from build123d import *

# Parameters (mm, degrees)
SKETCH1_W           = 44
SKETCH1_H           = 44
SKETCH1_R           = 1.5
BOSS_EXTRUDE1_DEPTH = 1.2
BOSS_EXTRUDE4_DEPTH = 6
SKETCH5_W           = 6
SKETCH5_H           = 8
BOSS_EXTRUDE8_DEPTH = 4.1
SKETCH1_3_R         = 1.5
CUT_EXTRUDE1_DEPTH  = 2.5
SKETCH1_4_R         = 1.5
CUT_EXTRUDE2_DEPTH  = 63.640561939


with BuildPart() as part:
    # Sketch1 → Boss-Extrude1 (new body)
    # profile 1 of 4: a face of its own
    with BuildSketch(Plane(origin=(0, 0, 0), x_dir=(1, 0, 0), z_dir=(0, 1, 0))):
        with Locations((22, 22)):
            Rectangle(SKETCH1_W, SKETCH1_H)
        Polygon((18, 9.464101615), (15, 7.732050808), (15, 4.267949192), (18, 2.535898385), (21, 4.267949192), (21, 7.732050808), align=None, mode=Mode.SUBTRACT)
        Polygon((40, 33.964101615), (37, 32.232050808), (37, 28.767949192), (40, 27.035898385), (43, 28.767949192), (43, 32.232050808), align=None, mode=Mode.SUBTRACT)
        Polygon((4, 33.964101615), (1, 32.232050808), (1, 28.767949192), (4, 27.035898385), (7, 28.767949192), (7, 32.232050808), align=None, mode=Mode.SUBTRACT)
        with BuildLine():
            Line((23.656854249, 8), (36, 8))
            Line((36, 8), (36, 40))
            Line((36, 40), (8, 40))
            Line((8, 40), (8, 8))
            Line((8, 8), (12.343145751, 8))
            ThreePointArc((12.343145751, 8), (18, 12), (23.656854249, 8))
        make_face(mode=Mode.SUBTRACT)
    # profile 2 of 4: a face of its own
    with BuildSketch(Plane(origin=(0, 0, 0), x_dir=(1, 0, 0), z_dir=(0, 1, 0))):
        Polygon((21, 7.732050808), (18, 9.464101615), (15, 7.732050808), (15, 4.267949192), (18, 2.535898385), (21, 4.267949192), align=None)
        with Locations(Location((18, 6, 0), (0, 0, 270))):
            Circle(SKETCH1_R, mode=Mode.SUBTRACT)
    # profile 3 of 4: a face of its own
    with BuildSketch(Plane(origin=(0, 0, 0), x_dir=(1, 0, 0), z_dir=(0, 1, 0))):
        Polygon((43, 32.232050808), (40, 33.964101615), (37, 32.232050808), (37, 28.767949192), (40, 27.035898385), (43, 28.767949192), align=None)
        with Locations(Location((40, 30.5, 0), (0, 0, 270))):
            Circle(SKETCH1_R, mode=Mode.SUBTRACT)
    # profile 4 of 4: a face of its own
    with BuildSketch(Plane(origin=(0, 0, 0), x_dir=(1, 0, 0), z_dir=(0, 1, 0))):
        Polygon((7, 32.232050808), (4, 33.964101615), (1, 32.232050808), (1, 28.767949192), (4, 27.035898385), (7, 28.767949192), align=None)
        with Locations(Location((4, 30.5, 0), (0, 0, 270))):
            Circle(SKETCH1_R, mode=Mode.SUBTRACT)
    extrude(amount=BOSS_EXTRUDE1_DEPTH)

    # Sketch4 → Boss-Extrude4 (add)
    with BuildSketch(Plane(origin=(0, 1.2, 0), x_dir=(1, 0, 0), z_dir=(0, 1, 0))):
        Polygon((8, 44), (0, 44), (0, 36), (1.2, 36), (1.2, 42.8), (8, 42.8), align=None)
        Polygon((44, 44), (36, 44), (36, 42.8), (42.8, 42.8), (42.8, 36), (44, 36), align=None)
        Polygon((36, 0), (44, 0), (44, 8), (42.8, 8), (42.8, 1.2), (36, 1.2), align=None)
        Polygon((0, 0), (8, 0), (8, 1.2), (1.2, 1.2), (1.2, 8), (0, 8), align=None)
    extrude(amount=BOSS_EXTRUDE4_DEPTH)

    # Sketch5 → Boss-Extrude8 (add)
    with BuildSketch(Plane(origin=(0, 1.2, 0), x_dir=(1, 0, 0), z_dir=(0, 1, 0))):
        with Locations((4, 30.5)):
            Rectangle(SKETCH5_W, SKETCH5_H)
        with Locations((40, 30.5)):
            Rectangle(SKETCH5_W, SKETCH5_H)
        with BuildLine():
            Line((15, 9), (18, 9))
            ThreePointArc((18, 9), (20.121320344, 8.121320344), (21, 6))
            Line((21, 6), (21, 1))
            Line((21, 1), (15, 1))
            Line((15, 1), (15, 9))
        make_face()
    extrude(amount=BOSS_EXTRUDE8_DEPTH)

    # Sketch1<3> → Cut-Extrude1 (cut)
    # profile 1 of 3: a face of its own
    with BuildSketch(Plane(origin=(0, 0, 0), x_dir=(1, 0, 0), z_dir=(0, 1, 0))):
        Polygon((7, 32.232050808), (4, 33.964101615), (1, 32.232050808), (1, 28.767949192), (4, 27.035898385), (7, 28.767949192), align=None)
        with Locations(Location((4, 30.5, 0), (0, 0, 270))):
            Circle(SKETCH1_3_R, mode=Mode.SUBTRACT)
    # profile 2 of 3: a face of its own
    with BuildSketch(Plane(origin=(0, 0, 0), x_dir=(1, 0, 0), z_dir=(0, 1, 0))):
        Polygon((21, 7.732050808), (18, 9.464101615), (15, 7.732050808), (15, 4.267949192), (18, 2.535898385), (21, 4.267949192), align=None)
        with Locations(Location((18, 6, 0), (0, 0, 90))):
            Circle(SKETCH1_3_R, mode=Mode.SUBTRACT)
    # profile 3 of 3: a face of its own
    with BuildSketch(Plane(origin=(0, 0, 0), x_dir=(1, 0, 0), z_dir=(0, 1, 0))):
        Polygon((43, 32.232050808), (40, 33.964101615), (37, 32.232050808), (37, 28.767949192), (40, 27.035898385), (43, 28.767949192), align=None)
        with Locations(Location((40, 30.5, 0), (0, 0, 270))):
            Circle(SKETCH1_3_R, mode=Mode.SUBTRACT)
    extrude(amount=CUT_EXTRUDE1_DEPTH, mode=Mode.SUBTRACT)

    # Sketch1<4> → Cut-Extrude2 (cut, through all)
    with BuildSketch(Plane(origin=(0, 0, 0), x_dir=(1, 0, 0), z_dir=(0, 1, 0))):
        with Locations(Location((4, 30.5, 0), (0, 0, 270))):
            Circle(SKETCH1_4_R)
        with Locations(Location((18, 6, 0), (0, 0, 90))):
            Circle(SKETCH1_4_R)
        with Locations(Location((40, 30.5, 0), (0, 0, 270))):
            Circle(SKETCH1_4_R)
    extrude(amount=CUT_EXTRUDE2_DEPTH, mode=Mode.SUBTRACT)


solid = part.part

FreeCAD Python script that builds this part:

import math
import FreeCAD as App
import Part
import Sketcher
Q = App.Units.Quantity


def add_polygon(sketch, points):
    """Adds a closed chain of lines whose ends are joined by coincident constraints."""
    first, n = sketch.GeometryCount, len(points)
    for a, b in zip(points, points[1:] + points[:1]):
        sketch.addGeometry(Part.LineSegment(App.Vector(*a, 0), App.Vector(*b, 0)), False)
    for i in range(n):
        sketch.addConstraint(Sketcher.Constraint("Coincident", first + i, 2, first + (i + 1) % n, 1))

doc = App.newDocument("Part")
body = doc.addObject("PartDesign::Body", "Body")

# Sketch on XZ plane
sketch1 = body.newObject("Sketcher::SketchObject", "Sketch")
sketch1.AttachmentSupport = (doc.getObject("XZ_Plane"), [""])
sketch1.MapMode = "FlatFace"
add_polygon(sketch1, [(0, -44), (0, 0), (44, 0), (44, -44)])  # lines 0-3
sketch1.addGeometry(Part.LineSegment(App.Vector(36, -8, 0), App.Vector(23.7, -8, 0)), False)  # 4
sketch1.addGeometry(Part.ArcOfCircle(Part.Circle(App.Vector(18, -6, 0), App.Vector(0, 0, 1), 6), math.radians(-161), math.radians(-19)), False)  # 5
sketch1.addGeometry(Part.LineSegment(App.Vector(12.3, -8, 0), App.Vector(8, -8, 0)), False)  # 6
sketch1.addGeometry(Part.LineSegment(App.Vector(8, -8, 0), App.Vector(8, -40, 0)), False)  # 7
sketch1.addGeometry(Part.LineSegment(App.Vector(8, -40, 0), App.Vector(36, -40, 0)), False)  # 8
sketch1.addGeometry(Part.LineSegment(App.Vector(36, -40, 0), App.Vector(36, -8, 0)), False)  # 9
sketch1.addGeometry(Part.Circle(App.Vector(18, -6, 0), App.Vector(0, 0, 1), 1.5), False)  # 10
sketch1.addGeometry(Part.Circle(App.Vector(4, -30.5, 0), App.Vector(0, 0, 1), 1.5), False)  # 11
sketch1.addGeometry(Part.Circle(App.Vector(40, -30.5, 0), App.Vector(0, 0, 1), 1.5), False)  # 12
sketch1.addConstraint(Sketcher.Constraint("Coincident", 4, 2, 5, 2))
sketch1.addConstraint(Sketcher.Constraint("Coincident", 5, 1, 6, 1))
sketch1.addConstraint(Sketcher.Constraint("Coincident", 6, 2, 7, 1))
sketch1.addConstraint(Sketcher.Constraint("Coincident", 7, 2, 8, 1))
sketch1.addConstraint(Sketcher.Constraint("Coincident", 8, 2, 9, 1))
sketch1.addConstraint(Sketcher.Constraint("Coincident", 9, 2, 4, 1))
sketch1.addConstraint(Sketcher.Constraint("Vertical", 0))
sketch1.addConstraint(Sketcher.Constraint("Horizontal", 1))
sketch1.addConstraint(Sketcher.Constraint("Vertical", 2))
sketch1.addConstraint(Sketcher.Constraint("Horizontal", 3))
sketch1.addConstraint(Sketcher.Constraint("Horizontal", 4))
sketch1.addConstraint(Sketcher.Constraint("Horizontal", 6))
sketch1.addConstraint(Sketcher.Constraint("Vertical", 7))
sketch1.addConstraint(Sketcher.Constraint("Horizontal", 8))
sketch1.addConstraint(Sketcher.Constraint("Vertical", 9))
sketch1.addConstraint(Sketcher.Constraint("Coincident", 0, 2, -1, 1))
sketch1.addConstraint(Sketcher.Constraint("Coincident", 10, 3, 5, 3))
sketch1.addConstraint(Sketcher.Constraint("Equal", 10, 11))
sketch1.addConstraint(Sketcher.Constraint("Equal", 11, 12))
sketch1.addConstraint(Sketcher.Constraint("Horizontal", 11, 3, 12, 3))
sketch1.addConstraint(Sketcher.Constraint("Horizontal", 4, 2, 5, 1))
sketch1.addConstraint(Sketcher.Constraint("Equal", 3, 0))
sketch1.addConstraint(Sketcher.Constraint("Diameter", 10, 3.0))
sketch1.addConstraint(Sketcher.Constraint("Radius", 5, 6.0))
sketch1.addConstraint(Sketcher.Constraint("DistanceX", 1, 1, 1, 2, 44.0))
sketch1.addConstraint(Sketcher.Constraint("DistanceX", 8, 1, 8, 2, 28.0))
sketch1.addConstraint(Sketcher.Constraint("DistanceY", 7, 2, 7, 1, 32.0))
sketch1.addConstraint(Sketcher.Constraint("DistanceX", -1, 1, 5, 3, 18.0))
sketch1.addConstraint(Sketcher.Constraint("DistanceY", 5, 3, -1, 1, 6.0))
sketch1.addConstraint(Sketcher.Constraint("DistanceX", -1, 1, 11, 3, 4.0))
sketch1.addConstraint(Sketcher.Constraint("DistanceX", -1, 1, 12, 3, 40.0))
sketch1.addConstraint(Sketcher.Constraint("DistanceY", 4, 2, -1, 1, 8.0))
sketch1.addConstraint(Sketcher.Constraint("DistanceX", -1, 1, 6, 2, 8.0))
sketch1.addConstraint(Sketcher.Constraint("DistanceY", 11, 3, -1, 1, 30.5))
pad1 = body.newObject("PartDesign::Pad", "Pad")
pad1.Profile = sketch1
pad1.Length = 1.2
pad1.Reversed = True

# Sketch on XZ plane
sketch2 = body.newObject("Sketcher::SketchObject", "Sketch001")
sketch2.AttachmentSupport = (doc.getObject("XZ_Plane"), [""])
sketch2.MapMode = "FlatFace"
sketch2.AttachmentOffset = App.Placement(App.Vector(0, 0, -1.2), App.Rotation())
add_polygon(sketch2, [(8, -44), (0, -44), (0, -36), (1.2, -36), (1.2, -42.8), (8, -42.8)])  # lines 0-5
add_polygon(sketch2, [(44, -44), (36, -44), (36, -42.8), (42.8, -42.8), (42.8, -36), (44, -36)])  # lines 6-11
add_polygon(sketch2, [(36, 0), (44, 0), (44, -8), (42.8, -8), (42.8, -1.2), (36, -1.2)])  # lines 12-17
add_polygon(sketch2, [(0, 0), (8, 0), (8, -1.2), (1.2, -1.2), (1.2, -8), (0, -8)])  # lines 18-23
sketch2.addConstraint(Sketcher.Constraint("Horizontal", 0))
sketch2.addConstraint(Sketcher.Constraint("Vertical", 1))
sketch2.addConstraint(Sketcher.Constraint("Horizontal", 2))
sketch2.addConstraint(Sketcher.Constraint("Vertical", 3))
sketch2.addConstraint(Sketcher.Constraint("Horizontal", 4))
sketch2.addConstraint(Sketcher.Constraint("Vertical", 5))
sketch2.addConstraint(Sketcher.Constraint("Horizontal", 6))
sketch2.addConstraint(Sketcher.Constraint("Vertical", 7))
sketch2.addConstraint(Sketcher.Constraint("Horizontal", 8))
sketch2.addConstraint(Sketcher.Constraint("Vertical", 9))
sketch2.addConstraint(Sketcher.Constraint("Horizontal", 10))
sketch2.addConstraint(Sketcher.Constraint("Vertical", 11))
sketch2.addConstraint(Sketcher.Constraint("Horizontal", 12))
sketch2.addConstraint(Sketcher.Constraint("Vertical", 13))
sketch2.addConstraint(Sketcher.Constraint("Horizontal", 14))
sketch2.addConstraint(Sketcher.Constraint("Vertical", 15))
sketch2.addConstraint(Sketcher.Constraint("Horizontal", 16))
sketch2.addConstraint(Sketcher.Constraint("Vertical", 17))
sketch2.addConstraint(Sketcher.Constraint("Horizontal", 18))
sketch2.addConstraint(Sketcher.Constraint("Vertical", 19))
sketch2.addConstraint(Sketcher.Constraint("Horizontal", 20))
sketch2.addConstraint(Sketcher.Constraint("Vertical", 21))
sketch2.addConstraint(Sketcher.Constraint("Horizontal", 22))
sketch2.addConstraint(Sketcher.Constraint("Vertical", 23))
sketch2.addConstraint(Sketcher.Constraint("Coincident", 23, 2, -1, 1))
sketch2.addConstraint(Sketcher.Constraint("PointOnObject", 0, 2, -2))
sketch2.addConstraint(Sketcher.Constraint("PointOnObject", 12, 2, -1))
sketch2.addConstraint(Sketcher.Constraint("Horizontal", 5, 2, 6, 2))
sketch2.addConstraint(Sketcher.Constraint("Horizontal", 4, 2, 7, 2))
sketch2.addConstraint(Sketcher.Constraint("Horizontal", 2, 2, 9, 2))
sketch2.addConstraint(Sketcher.Constraint("Horizontal", 16, 2, 19, 2))
sketch2.addConstraint(Sketcher.Constraint("Horizontal", 14, 2, 21, 2))
sketch2.addConstraint(Sketcher.Constraint("Vertical", 11, 2, 12, 2))
sketch2.addConstraint(Sketcher.Constraint("Vertical", 9, 2, 14, 2))
sketch2.addConstraint(Sketcher.Constraint("Vertical", 7, 2, 16, 2))
sketch2.addConstraint(Sketcher.Constraint("Vertical", 5, 2, 18, 2))
sketch2.addConstraint(Sketcher.Constraint("Vertical", 3, 2, 20, 2))
sketch2.addConstraint(Sketcher.Constraint("Equal", 0, 6))
sketch2.addConstraint(Sketcher.Constraint("Equal", 4, 8))
sketch2.addConstraint(Sketcher.Constraint("Equal", 18, 1))
sketch2.addConstraint(Sketcher.Constraint("Equal", 20, 3))
sketch2.addConstraint(Sketcher.Constraint("Equal", 11, 13))
sketch2.addConstraint(Sketcher.Constraint("Equal", 9, 15))
sketch2.addConstraint(Sketcher.Constraint("DistanceX", 0, 2, 0, 1, 8.0))
sketch2.addConstraint(Sketcher.Constraint("DistanceX", 2, 1, 2, 2, 1.2))
sketch2.addConstraint(Sketcher.Constraint("DistanceY", 0, 2, -1, 1, 44.0))
sketch2.addConstraint(Sketcher.Constraint("DistanceX", -1, 1, 6, 2, 36.0))
pad2 = body.newObject("PartDesign::Pad", "Pad001")
pad2.Profile = sketch2
pad2.Length = 6
pad2.Reversed = True

# Sketch on XZ plane
sketch3 = body.newObject("Sketcher::SketchObject", "Sketch002")
sketch3.AttachmentSupport = (doc.getObject("XZ_Plane"), [""])
sketch3.MapMode = "FlatFace"
sketch3.AttachmentOffset = App.Placement(App.Vector(0, 0, -1.2), App.Rotation())
add_polygon(sketch3, [(1, -34.5), (1, -26.5), (7, -26.5), (7, -34.5)])  # lines 0-3
add_polygon(sketch3, [(37, -34.5), (37, -26.5), (43, -26.5), (43, -34.5)])  # lines 4-7
sketch3.addGeometry(Part.LineSegment(App.Vector(18, -9, 0), App.Vector(15, -9, 0)), False)  # 8
sketch3.addGeometry(Part.LineSegment(App.Vector(15, -9, 0), App.Vector(15, -1, 0)), False)  # 9
sketch3.addGeometry(Part.LineSegment(App.Vector(15, -1, 0), App.Vector(21, -1, 0)), False)  # 10
sketch3.addGeometry(Part.LineSegment(App.Vector(21, -1, 0), App.Vector(21, -6, 0)), False)  # 11
sketch3.addGeometry(Part.ArcOfCircle(Part.Circle(App.Vector(18, -6, 0), App.Vector(0, 0, 1), 3), math.radians(-90), math.radians(0)), False)  # 12
sketch3.addConstraint(Sketcher.Constraint("Coincident", 8, 2, 9, 1))
sketch3.addConstraint(Sketcher.Constraint("Coincident", 9, 2, 10, 1))
sketch3.addConstraint(Sketcher.Constraint("Coincident", 10, 2, 11, 1))
sketch3.addConstraint(Sketcher.Constraint("Tangent", 11, 2, 12, 2))
sketch3.addConstraint(Sketcher.Constraint("Tangent", 12, 1, 8, 1))
sketch3.addConstraint(Sketcher.Constraint("Vertical", 0))
sketch3.addConstraint(Sketcher.Constraint("Horizontal", 1))
sketch3.addConstraint(Sketcher.Constraint("Vertical", 2))
sketch3.addConstraint(Sketcher.Constraint("Horizontal", 3))
sketch3.addConstraint(Sketcher.Constraint("Vertical", 4))
sketch3.addConstraint(Sketcher.Constraint("Horizontal", 5))
sketch3.addConstraint(Sketcher.Constraint("Vertical", 6))
sketch3.addConstraint(Sketcher.Constraint("Horizontal", 7))
sketch3.addConstraint(Sketcher.Constraint("Horizontal", 8))
sketch3.addConstraint(Sketcher.Constraint("Vertical", 9))
sketch3.addConstraint(Sketcher.Constraint("Horizontal", 10))
sketch3.addConstraint(Sketcher.Constraint("Vertical", 11))
sketch3.addConstraint(Sketcher.Constraint("Horizontal", 1, 2, 4, 2))
sketch3.addConstraint(Sketcher.Constraint("Horizontal", 3, 2, 6, 2))
sketch3.addConstraint(Sketcher.Constraint("Equal", 3, 5))
sketch3.addConstraint(Sketcher.Constraint("Equal", 7, 10))
sketch3.addConstraint(Sketcher.Constraint("Equal", 6, 9))
sketch3.addConstraint(Sketcher.Constraint("Radius", 12, 3.0))
sketch3.addConstraint(Sketcher.Constraint("DistanceX", 1, 1, 1, 2, 6.0))
sketch3.addConstraint(Sketcher.Constraint("DistanceY", 0, 1, 0, 2, 8.0))
sketch3.addConstraint(Sketcher.Constraint("DistanceX", -1, 1, 12, 3, 18.0))
sketch3.addConstraint(Sketcher.Constraint("DistanceY", 12, 3, -1, 1, 6.0))
sketch3.addConstraint(Sketcher.Constraint("DistanceX", -1, 1, 0, 2, 1.0))
sketch3.addConstraint(Sketcher.Constraint("DistanceX", -1, 1, 4, 2, 37.0))
sketch3.addConstraint(Sketcher.Constraint("DistanceY", 0, 2, -1, 1, 26.5))
pad3 = body.newObject("PartDesign::Pad", "Pad002")
pad3.Profile = sketch3
pad3.Length = 4.1
pad3.Reversed = True

# Sketch on XZ plane
sketch4 = body.newObject("Sketcher::SketchObject", "Sketch003")
sketch4.AttachmentSupport = (doc.getObject("XZ_Plane"), [""])
sketch4.MapMode = "FlatFace"
add_polygon(sketch4, [(7, -32.2), (4, -34), (1, -32.2), (1, -28.8), (4, -27), (7, -28.8)])  # lines 0-5
sketch4.addGeometry(Part.Circle(App.Vector(4, -30.5, 0), App.Vector(0, 0, 1), 1.5), False)  # 6
add_polygon(sketch4, [(21, -7.7), (18, -9.5), (15, -7.7), (15, -4.3), (18, -2.5), (21, -4.3)])  # lines 7-12
sketch4.addGeometry(Part.Circle(App.Vector(18, -6, 0), App.Vector(0, 0, 1), 1.5), False)  # 13
add_polygon(sketch4, [(43, -32.2), (40, -34), (37, -32.2), (37, -28.8), (40, -27), (43, -28.8)])  # lines 14-19
sketch4.addGeometry(Part.Circle(App.Vector(40, -30.5, 0), App.Vector(0, 0, 1), 1.5), False)  # 20
sketch4.addConstraint(Sketcher.Constraint("Vertical", 2))
sketch4.addConstraint(Sketcher.Constraint("Vertical", 5))
sketch4.addConstraint(Sketcher.Constraint("Vertical", 9))
sketch4.addConstraint(Sketcher.Constraint("Vertical", 12))
sketch4.addConstraint(Sketcher.Constraint("Vertical", 16))
sketch4.addConstraint(Sketcher.Constraint("Vertical", 19))
sketch4.addConstraint(Sketcher.Constraint("Equal", 6, 13))
sketch4.addConstraint(Sketcher.Constraint("Equal", 13, 20))
sketch4.addConstraint(Sketcher.Constraint("Parallel", 0, 3))
sketch4.addConstraint(Sketcher.Constraint("Parallel", 1, 4))
sketch4.addConstraint(Sketcher.Constraint("Parallel", 3, 7))
sketch4.addConstraint(Sketcher.Constraint("Parallel", 4, 8))
sketch4.addConstraint(Sketcher.Constraint("Parallel", 7, 10))
sketch4.addConstraint(Sketcher.Constraint("Parallel", 8, 11))
sketch4.addConstraint(Sketcher.Constraint("Parallel", 10, 14))
sketch4.addConstraint(Sketcher.Constraint("Parallel", 11, 15))
sketch4.addConstraint(Sketcher.Constraint("Parallel", 14, 17))
sketch4.addConstraint(Sketcher.Constraint("Parallel", 15, 18))
sketch4.addConstraint(Sketcher.Constraint("Horizontal", 6, 3, 20, 3))
sketch4.addConstraint(Sketcher.Constraint("Horizontal", 2, 2, 4, 2))
sketch4.addConstraint(Sketcher.Constraint("Horizontal", 1, 2, 5, 2))
sketch4.addConstraint(Sketcher.Constraint("Horizontal", 9, 2, 11, 2))
sketch4.addConstraint(Sketcher.Constraint("Horizontal", 8, 2, 12, 2))
sketch4.addConstraint(Sketcher.Constraint("Horizontal", 0, 2, 14, 2))
sketch4.addConstraint(Sketcher.Constraint("Horizontal", 5, 2, 15, 2))
sketch4.addConstraint(Sketcher.Constraint("Horizontal", 4, 2, 16, 2))
sketch4.addConstraint(Sketcher.Constraint("Horizontal", 3, 2, 17, 2))
sketch4.addConstraint(Sketcher.Constraint("Horizontal", 16, 2, 18, 2))
sketch4.addConstraint(Sketcher.Constraint("Vertical", 6, 3, 0, 2))
sketch4.addConstraint(Sketcher.Constraint("Vertical", 0, 2, 3, 2))
sketch4.addConstraint(Sketcher.Constraint("Vertical", 13, 3, 7, 2))
sketch4.addConstraint(Sketcher.Constraint("Vertical", 20, 3, 14, 2))
sketch4.addConstraint(Sketcher.Constraint("Equal", 5, 9))
sketch4.addConstraint(Sketcher.Constraint("Equal", 4, 7))
sketch4.addConstraint(Sketcher.Constraint("Diameter", 6, 3.0))
sketch4.addConstraint(Sketcher.Constraint("Angle", 0, Q("-150 deg")))
sketch4.addConstraint(Sketcher.Constraint("DistanceX", -1, 1, 6, 3, 4.0))
sketch4.addConstraint(Sketcher.Constraint("DistanceX", -1, 1, 13, 3, 18.0))
sketch4.addConstraint(Sketcher.Constraint("DistanceY", 13, 3, -1, 1, 6.0))
sketch4.addConstraint(Sketcher.Constraint("DistanceX", -1, 1, 20, 3, 40.0))
sketch4.addConstraint(Sketcher.Constraint("DistanceX", -1, 1, 1, 2, 1.0))
sketch4.addConstraint(Sketcher.Constraint("DistanceY", 6, 3, -1, 1, 30.5))
sketch4.addConstraint(Sketcher.Constraint("DistanceY", 4, 2, 9, 2, 24.5))
sketch4.addConstraint(Sketcher.Constraint("DistanceY", 2, 1, 2, 2, 3.464102))
sketch4.addConstraint(Sketcher.Constraint("DistanceY", 0, 2, -1, 1, 33.964102))
pocket1 = body.newObject("PartDesign::Pocket", "Pocket")
pocket1.Profile = sketch4
pocket1.Length = 2.5

# Sketch on XZ plane
sketch5 = body.newObject("Sketcher::SketchObject", "Sketch004")
sketch5.AttachmentSupport = (doc.getObject("XZ_Plane"), [""])
sketch5.MapMode = "FlatFace"
sketch5.addGeometry(Part.Circle(App.Vector(4, -30.5, 0), App.Vector(0, 0, 1), 1.5), False)
sketch5.addGeometry(Part.Circle(App.Vector(18, -6, 0), App.Vector(0, 0, 1), 1.5), False)
sketch5.addGeometry(Part.Circle(App.Vector(40, -30.5, 0), App.Vector(0, 0, 1), 1.5), False)
sketch5.addConstraint(Sketcher.Constraint("Equal", 0, 1))
sketch5.addConstraint(Sketcher.Constraint("Equal", 1, 2))
sketch5.addConstraint(Sketcher.Constraint("Horizontal", 0, 3, 2, 3))
sketch5.addConstraint(Sketcher.Constraint("Diameter", 0, 3.0))
sketch5.addConstraint(Sketcher.Constraint("DistanceX", -1, 1, 0, 3, 4.0))
sketch5.addConstraint(Sketcher.Constraint("DistanceX", -1, 1, 1, 3, 18.0))
sketch5.addConstraint(Sketcher.Constraint("DistanceY", 1, 3, -1, 1, 6.0))
sketch5.addConstraint(Sketcher.Constraint("DistanceX", -1, 1, 2, 3, 40.0))
sketch5.addConstraint(Sketcher.Constraint("DistanceY", 0, 3, -1, 1, 30.5))
pocket2 = body.newObject("PartDesign::Pocket", "Pocket001")
pocket2.Profile = sketch5
pocket2.Type = "ThroughAll"

doc.recompute()
